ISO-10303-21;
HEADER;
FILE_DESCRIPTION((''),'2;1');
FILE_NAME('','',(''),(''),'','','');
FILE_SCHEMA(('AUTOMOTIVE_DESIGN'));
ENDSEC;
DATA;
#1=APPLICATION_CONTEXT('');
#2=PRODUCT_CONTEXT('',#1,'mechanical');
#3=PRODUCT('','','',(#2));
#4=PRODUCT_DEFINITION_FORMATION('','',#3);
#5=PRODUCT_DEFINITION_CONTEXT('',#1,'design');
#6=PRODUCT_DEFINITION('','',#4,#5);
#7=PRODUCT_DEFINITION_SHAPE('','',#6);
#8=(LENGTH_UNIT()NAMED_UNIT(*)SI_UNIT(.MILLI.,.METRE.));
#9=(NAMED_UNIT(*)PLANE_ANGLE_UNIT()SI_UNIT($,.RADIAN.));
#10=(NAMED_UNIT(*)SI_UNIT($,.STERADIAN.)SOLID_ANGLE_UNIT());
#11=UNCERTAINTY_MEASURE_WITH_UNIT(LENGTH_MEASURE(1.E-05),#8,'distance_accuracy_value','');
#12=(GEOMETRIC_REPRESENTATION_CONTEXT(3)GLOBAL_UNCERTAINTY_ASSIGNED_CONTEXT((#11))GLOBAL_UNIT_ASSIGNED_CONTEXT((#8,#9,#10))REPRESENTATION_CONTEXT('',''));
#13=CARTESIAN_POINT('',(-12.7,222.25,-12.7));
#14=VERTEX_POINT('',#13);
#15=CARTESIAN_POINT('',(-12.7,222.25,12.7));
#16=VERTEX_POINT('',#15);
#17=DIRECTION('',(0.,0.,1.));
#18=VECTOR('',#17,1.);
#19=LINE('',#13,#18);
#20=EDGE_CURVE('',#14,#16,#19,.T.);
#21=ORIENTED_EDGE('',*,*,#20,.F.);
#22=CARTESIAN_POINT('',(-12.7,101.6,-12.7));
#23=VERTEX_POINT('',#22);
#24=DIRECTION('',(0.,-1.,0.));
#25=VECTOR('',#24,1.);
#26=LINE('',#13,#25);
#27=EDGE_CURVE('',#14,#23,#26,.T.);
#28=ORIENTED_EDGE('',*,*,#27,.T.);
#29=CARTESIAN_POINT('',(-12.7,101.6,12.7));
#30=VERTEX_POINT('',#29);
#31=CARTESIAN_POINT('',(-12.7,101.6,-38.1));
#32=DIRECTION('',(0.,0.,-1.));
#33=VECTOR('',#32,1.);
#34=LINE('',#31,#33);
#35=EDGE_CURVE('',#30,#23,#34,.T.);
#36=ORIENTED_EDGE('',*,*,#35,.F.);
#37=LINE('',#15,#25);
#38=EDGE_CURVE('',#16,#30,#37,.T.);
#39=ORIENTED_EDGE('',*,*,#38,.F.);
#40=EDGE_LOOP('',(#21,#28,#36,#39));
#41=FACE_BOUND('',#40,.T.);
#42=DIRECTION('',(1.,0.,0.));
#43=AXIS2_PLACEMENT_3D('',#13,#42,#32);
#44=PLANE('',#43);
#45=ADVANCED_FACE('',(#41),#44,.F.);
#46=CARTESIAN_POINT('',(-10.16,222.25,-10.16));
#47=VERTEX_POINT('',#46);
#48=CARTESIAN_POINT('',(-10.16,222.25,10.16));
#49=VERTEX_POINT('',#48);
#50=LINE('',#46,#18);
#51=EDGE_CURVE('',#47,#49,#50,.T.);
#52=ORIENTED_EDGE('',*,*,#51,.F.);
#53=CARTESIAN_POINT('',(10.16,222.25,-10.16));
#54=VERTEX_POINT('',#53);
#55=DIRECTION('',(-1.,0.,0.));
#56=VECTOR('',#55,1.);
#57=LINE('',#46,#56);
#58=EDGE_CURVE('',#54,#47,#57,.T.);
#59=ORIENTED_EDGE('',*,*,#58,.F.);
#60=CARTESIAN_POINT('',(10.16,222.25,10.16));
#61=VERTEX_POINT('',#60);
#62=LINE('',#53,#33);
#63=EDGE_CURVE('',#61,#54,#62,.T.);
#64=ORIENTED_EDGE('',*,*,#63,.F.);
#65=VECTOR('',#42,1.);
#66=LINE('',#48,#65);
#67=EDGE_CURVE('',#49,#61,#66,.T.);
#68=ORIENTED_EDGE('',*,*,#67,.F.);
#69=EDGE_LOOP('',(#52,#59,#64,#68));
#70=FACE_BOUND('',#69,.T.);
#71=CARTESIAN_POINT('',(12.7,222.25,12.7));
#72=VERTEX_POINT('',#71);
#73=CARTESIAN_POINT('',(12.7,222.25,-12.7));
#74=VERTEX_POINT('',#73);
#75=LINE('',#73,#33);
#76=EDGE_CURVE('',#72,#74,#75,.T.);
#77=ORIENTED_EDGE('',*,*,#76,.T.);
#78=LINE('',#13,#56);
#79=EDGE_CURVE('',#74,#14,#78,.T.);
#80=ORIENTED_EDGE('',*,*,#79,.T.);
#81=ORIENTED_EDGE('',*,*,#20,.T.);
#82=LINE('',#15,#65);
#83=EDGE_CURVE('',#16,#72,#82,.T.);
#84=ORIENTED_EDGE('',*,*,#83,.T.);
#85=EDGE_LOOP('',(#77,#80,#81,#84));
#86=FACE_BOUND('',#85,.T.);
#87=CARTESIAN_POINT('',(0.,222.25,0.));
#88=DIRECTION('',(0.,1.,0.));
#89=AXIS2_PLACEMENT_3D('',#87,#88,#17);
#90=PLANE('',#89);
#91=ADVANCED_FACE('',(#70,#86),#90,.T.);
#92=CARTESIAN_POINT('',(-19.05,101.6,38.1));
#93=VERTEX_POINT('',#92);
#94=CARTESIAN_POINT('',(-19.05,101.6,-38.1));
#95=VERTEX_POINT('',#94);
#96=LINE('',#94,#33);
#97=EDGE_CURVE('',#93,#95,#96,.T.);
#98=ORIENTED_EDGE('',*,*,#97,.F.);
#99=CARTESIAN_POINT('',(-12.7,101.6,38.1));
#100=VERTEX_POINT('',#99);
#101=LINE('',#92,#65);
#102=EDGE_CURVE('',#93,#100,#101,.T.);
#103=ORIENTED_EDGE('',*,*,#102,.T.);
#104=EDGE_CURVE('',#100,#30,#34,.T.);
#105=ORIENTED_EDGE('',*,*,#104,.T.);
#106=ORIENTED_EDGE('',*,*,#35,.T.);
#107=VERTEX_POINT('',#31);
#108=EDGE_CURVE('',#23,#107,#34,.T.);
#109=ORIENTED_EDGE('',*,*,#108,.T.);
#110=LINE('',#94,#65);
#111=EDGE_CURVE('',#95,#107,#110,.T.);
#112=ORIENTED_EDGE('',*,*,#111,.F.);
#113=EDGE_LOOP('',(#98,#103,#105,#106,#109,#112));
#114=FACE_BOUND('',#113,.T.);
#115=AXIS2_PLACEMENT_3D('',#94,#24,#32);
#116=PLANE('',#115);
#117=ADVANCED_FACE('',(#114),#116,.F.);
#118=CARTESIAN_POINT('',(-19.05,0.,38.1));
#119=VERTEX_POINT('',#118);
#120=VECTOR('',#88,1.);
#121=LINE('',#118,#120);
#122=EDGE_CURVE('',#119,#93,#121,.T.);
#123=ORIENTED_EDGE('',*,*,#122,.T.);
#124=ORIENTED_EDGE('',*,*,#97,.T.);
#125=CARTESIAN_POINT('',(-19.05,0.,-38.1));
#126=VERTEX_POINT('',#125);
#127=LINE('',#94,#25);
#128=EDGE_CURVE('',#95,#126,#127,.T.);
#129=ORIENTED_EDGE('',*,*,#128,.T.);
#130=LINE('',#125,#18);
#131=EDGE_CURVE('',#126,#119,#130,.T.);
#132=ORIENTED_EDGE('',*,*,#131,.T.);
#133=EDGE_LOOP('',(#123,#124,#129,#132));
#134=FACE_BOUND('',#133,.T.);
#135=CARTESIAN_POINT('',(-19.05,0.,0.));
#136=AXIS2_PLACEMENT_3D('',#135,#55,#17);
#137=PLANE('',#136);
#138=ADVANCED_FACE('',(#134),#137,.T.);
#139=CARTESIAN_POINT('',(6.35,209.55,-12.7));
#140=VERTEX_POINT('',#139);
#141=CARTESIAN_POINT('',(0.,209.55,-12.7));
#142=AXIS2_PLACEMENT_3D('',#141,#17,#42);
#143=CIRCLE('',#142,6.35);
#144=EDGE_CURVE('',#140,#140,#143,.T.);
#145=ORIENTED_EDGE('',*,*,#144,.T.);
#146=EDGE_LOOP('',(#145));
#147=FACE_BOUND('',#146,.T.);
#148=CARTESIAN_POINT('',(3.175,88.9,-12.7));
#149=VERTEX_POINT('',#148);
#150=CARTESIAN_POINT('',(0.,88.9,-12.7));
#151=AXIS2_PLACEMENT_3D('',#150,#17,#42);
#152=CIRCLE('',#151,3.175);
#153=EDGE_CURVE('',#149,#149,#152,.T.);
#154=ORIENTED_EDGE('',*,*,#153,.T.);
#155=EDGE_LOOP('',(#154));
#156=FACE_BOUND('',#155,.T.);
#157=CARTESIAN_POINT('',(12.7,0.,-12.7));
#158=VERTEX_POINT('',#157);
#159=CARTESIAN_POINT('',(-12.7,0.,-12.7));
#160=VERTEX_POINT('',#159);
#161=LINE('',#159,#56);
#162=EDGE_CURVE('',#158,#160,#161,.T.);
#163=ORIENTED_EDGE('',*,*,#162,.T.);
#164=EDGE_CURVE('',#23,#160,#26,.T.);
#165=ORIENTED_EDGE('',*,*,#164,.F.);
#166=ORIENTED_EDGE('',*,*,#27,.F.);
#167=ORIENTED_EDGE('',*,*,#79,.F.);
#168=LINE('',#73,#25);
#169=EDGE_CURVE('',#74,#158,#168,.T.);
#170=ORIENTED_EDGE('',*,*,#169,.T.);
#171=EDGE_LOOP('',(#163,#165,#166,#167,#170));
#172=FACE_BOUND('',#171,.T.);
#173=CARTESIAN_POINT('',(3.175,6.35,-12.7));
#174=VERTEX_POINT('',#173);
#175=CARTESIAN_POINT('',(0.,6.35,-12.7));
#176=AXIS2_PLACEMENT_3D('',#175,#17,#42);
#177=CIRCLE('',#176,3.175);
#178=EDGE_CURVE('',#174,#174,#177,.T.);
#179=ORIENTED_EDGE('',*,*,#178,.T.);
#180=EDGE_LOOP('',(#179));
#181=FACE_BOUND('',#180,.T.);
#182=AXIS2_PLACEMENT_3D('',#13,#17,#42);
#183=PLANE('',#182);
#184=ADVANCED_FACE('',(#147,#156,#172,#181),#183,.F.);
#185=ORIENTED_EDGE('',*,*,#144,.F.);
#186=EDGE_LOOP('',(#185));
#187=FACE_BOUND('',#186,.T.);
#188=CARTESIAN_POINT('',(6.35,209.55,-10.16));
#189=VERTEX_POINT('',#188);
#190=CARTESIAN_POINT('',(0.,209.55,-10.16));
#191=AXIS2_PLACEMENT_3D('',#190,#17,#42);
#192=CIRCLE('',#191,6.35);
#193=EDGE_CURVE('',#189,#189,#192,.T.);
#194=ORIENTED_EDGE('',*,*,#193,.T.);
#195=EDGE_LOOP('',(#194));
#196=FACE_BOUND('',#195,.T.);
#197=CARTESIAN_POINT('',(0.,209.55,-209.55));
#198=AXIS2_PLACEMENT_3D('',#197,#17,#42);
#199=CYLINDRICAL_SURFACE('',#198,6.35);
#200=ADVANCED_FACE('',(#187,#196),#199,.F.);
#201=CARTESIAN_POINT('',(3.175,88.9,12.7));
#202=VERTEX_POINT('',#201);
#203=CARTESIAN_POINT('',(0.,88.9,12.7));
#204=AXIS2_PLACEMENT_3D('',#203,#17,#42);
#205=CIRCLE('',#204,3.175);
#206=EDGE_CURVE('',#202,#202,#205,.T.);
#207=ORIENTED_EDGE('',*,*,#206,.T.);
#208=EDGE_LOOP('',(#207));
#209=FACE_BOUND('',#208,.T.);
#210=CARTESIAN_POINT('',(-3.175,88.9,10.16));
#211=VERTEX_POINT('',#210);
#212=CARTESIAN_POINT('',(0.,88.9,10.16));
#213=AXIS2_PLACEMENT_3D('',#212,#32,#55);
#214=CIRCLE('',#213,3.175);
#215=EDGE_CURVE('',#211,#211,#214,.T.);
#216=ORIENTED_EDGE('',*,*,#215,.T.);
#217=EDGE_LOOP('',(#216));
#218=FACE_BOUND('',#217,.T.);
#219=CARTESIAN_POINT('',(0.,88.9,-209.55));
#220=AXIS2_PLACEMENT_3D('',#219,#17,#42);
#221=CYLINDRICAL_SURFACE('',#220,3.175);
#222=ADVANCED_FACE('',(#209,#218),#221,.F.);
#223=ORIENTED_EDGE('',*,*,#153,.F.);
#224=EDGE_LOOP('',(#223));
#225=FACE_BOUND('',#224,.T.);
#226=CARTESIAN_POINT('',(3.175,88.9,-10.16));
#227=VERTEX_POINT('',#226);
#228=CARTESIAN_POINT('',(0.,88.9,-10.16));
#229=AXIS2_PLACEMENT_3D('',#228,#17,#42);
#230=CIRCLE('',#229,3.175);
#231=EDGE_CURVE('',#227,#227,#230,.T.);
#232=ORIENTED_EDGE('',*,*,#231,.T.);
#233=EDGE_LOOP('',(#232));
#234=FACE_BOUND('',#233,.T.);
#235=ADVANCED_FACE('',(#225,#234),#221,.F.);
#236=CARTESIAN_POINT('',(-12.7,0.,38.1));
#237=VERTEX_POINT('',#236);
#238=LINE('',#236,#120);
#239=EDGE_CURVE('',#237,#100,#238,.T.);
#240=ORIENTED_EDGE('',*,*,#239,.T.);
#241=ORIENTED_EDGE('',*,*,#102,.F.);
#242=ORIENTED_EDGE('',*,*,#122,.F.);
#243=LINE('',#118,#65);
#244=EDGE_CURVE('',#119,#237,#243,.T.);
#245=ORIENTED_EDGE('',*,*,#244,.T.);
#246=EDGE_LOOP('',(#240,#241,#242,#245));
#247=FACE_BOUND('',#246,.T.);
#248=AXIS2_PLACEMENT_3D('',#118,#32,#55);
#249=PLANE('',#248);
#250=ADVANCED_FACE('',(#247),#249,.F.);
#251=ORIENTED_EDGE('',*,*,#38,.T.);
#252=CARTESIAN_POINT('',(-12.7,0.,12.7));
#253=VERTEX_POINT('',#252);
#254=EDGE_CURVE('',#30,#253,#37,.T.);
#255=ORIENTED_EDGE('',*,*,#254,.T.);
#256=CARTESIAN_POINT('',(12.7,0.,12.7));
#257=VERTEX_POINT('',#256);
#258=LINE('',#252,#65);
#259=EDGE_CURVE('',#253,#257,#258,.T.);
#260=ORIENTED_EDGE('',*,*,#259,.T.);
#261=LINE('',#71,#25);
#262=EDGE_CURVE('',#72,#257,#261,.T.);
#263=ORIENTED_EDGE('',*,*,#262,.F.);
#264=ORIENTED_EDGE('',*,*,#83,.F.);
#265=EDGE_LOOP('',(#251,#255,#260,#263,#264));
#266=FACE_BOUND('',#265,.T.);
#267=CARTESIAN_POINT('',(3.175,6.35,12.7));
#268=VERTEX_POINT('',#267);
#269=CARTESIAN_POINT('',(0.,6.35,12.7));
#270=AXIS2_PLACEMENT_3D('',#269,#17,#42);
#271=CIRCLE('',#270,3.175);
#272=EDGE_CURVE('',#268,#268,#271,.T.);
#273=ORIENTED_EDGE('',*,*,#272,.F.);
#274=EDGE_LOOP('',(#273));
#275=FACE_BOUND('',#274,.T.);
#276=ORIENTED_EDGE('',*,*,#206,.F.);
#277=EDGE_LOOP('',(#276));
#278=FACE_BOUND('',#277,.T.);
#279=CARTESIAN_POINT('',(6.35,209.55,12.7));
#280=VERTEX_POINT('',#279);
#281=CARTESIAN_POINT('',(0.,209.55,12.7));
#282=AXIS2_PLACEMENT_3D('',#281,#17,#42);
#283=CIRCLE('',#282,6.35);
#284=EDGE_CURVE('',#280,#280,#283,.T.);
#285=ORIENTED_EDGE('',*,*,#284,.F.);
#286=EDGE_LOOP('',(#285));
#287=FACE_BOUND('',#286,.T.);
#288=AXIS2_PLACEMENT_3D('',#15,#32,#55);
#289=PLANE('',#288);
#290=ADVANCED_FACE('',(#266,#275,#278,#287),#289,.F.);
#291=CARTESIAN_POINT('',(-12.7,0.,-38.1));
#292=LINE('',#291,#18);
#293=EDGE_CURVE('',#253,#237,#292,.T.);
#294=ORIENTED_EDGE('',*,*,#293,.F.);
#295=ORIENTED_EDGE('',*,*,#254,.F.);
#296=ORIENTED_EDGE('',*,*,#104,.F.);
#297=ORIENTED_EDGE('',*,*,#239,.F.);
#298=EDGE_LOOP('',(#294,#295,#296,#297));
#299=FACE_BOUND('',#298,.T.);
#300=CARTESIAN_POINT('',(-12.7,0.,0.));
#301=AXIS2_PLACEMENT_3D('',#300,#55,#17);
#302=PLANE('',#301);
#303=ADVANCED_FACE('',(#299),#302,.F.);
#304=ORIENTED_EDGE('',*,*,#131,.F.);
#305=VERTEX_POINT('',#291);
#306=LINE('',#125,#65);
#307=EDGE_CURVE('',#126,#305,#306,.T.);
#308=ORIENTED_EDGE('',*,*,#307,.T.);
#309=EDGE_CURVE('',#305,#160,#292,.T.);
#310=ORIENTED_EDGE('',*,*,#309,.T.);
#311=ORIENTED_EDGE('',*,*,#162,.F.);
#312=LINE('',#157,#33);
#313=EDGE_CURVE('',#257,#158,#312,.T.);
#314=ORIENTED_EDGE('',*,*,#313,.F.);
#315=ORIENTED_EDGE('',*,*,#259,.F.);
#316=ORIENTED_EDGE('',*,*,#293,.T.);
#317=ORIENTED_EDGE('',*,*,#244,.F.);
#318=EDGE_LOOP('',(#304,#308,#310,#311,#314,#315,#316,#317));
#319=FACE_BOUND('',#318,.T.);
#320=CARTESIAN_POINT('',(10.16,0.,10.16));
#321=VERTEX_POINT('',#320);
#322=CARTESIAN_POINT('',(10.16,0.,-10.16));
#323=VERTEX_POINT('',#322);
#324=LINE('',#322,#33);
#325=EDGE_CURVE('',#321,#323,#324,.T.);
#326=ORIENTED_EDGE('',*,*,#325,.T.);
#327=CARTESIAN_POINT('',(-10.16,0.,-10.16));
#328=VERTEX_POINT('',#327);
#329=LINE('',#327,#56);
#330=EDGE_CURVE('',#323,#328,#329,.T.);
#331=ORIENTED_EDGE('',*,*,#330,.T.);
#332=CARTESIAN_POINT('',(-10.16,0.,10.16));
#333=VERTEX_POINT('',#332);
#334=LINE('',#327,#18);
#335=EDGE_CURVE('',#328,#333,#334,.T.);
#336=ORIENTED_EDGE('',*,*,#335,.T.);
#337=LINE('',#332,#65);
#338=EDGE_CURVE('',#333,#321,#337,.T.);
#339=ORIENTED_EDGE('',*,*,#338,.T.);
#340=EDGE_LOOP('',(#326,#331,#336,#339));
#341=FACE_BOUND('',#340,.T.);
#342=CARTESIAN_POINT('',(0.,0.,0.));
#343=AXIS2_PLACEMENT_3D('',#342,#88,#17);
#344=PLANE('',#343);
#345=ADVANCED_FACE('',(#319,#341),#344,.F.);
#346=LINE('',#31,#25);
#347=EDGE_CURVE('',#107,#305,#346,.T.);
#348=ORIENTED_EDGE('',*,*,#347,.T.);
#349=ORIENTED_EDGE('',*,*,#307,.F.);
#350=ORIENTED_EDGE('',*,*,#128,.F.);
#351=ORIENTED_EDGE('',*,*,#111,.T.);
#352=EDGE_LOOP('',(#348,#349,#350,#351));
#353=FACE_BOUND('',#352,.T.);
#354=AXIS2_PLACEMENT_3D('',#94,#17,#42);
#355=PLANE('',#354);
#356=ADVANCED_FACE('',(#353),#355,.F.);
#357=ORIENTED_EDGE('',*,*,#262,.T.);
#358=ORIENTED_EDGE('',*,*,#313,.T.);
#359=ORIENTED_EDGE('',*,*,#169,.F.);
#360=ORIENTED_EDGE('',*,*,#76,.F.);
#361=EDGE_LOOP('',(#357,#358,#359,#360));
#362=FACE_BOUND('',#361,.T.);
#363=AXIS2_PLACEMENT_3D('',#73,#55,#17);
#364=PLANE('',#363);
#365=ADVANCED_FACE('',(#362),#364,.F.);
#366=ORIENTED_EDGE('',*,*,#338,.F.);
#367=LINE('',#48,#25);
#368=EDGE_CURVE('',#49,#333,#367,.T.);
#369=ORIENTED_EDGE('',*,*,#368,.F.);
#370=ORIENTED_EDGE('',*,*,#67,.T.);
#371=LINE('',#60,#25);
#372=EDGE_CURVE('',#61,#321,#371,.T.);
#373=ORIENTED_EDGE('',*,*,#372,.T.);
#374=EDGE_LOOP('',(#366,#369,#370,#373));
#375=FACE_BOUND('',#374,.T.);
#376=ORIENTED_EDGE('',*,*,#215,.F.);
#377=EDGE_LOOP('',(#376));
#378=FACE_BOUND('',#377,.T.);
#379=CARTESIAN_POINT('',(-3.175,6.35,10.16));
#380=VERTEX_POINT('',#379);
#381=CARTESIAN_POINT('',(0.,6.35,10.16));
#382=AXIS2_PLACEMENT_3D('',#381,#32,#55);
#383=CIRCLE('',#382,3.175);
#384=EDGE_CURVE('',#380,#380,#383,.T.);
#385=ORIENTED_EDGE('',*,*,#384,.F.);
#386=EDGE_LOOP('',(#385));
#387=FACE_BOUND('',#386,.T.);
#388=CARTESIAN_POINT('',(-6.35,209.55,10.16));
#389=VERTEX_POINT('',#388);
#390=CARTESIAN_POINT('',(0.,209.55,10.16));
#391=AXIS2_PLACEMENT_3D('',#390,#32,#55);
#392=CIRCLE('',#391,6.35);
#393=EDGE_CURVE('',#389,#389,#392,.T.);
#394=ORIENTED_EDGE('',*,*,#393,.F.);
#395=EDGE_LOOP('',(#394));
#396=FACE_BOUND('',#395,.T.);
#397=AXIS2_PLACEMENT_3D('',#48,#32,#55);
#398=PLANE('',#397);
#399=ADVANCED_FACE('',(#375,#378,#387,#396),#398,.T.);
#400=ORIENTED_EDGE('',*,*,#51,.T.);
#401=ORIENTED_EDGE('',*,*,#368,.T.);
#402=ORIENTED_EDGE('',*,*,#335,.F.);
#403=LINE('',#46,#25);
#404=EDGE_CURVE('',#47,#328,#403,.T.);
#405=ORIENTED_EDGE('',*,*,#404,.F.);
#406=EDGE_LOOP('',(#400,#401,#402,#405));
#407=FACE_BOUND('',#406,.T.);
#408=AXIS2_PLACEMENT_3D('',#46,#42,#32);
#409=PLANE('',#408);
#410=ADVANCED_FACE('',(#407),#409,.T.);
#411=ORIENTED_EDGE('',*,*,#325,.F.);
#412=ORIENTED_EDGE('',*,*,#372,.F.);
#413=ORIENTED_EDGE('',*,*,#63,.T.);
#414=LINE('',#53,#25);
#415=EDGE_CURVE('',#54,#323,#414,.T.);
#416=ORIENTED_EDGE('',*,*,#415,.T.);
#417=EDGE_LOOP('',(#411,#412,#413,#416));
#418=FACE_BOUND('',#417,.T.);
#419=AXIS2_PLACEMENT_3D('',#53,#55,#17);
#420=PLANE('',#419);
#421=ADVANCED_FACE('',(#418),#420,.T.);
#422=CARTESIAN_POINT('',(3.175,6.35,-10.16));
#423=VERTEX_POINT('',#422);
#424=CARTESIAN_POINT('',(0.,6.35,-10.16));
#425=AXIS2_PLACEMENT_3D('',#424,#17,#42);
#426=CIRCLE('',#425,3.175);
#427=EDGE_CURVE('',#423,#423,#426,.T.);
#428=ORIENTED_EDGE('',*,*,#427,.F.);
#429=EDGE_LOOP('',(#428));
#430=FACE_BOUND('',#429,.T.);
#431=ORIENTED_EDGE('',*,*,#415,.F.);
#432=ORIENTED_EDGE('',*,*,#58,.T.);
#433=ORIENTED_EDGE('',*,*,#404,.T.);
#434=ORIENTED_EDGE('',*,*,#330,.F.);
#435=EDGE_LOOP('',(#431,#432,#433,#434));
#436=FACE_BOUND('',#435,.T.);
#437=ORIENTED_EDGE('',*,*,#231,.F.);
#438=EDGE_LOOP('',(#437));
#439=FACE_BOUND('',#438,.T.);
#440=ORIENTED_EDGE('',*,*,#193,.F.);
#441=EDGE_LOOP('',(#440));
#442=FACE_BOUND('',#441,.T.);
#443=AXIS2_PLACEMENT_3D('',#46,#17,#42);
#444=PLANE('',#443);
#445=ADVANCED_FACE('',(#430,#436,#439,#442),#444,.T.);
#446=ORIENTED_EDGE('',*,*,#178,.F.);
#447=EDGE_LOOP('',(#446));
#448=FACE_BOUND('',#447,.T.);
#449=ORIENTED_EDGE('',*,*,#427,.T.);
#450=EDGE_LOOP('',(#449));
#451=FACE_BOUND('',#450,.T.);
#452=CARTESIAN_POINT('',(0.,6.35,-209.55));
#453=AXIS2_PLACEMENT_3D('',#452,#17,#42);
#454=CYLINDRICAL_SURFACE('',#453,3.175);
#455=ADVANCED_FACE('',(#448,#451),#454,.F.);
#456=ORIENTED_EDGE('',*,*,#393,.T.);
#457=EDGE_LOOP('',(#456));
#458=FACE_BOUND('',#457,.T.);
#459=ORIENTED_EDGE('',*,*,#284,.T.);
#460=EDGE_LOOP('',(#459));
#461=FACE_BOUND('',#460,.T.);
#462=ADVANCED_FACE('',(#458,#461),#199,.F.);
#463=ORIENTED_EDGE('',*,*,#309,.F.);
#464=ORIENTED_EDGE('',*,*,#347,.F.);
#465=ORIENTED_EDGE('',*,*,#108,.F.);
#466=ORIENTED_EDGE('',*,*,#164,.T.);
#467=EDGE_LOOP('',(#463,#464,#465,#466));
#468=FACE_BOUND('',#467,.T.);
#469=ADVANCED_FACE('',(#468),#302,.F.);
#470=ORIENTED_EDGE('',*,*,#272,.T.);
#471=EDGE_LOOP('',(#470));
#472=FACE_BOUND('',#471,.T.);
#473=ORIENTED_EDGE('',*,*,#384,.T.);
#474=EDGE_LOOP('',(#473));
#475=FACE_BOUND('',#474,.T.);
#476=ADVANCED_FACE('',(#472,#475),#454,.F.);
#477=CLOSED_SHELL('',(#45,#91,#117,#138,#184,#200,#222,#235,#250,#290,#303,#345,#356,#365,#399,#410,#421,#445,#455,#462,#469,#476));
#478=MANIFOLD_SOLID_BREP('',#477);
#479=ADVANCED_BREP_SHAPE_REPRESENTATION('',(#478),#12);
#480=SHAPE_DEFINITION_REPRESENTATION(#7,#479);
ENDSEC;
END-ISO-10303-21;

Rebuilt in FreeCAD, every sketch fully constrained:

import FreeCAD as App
import Part
import Sketcher
from FreeCAD import Vector
Q = App.Units.Quantity


def add_polygon(sketch, points):
    """Adds a closed chain of lines whose ends are joined by coincident constraints."""
    first, n = sketch.GeometryCount, len(points)
    for a, b in zip(points, points[1:] + points[:1]):
        sketch.addGeometry(Part.LineSegment(App.Vector(*a, 0), App.Vector(*b, 0)), False)
    for i in range(n):
        sketch.addConstraint(Sketcher.Constraint("Coincident", first + i, 2, first + (i + 1) % n, 1))

doc = App.newDocument("Part")
body = doc.addObject("PartDesign::Body", "Body")

# Sketch on XZ plane
sketch1 = doc.addObject("Sketcher::SketchObject", "Sketch")
body.addObject(sketch1)
sketch1.AttachmentSupport = (doc.XZ_Plane, [""])
sketch1.MapMode = "FlatFace"
add_polygon(sketch1, [(-12.7, -12.7), (-12.7, 12.7), (12.7, 12.7), (12.7, -12.7)])  # lines 0-3
add_polygon(sketch1, [(10.16, 10.16), (-10.16, 10.16), (-10.16, -10.16), (10.16, -10.16)])  # lines 4-7
sketch1.addConstraint([
    Sketcher.Constraint("Vertical", 0),
    Sketcher.Constraint("Horizontal", 1),
    Sketcher.Constraint("Vertical", 2),
    Sketcher.Constraint("Horizontal", 3),
    Sketcher.Constraint("Horizontal", 4),
    Sketcher.Constraint("Vertical", 5),
    Sketcher.Constraint("Horizontal", 6),
    Sketcher.Constraint("Vertical", 7),
    Sketcher.Constraint("Symmetric", 0, 2, 2, 2, -1, 1),
    Sketcher.Constraint("Symmetric", 4, 2, 6, 2, -1, 1),
    Sketcher.Constraint("Equal", 3, 0),
    Sketcher.Constraint("Equal", 6, 5),
    Sketcher.Constraint("DistanceX", 1, 1, 1, 2, Q("1 in")),
    Sketcher.Constraint("DistanceX", 4, 2, 4, 1, Q("0.8 in")),
])
pad1 = doc.addObject("PartDesign::Pad", "Pad")
body.addObject(pad1)
pad1.Profile = sketch1
pad1.Length = Q("8.75 in")
pad1.Reversed = True

# Sketch on XY plane
sketch2 = doc.addObject("Sketcher::SketchObject", "Sketch001")
body.addObject(sketch2)
sketch2.AttachmentSupport = (doc.XY_Plane, [""])
sketch2.MapMode = "FlatFace"
sketch2.AttachmentOffset = App.Placement(Vector(0, 0, 0.5 * 25.4), App.Rotation())
sketch2.addGeometry([
    Part.Circle(Vector(0, 209.55, 0), Vector(0, 0, 1), 6.35),
    Part.Circle(Vector(0, 6.35, 0), Vector(0, 0, 1), 3.175),
    Part.Circle(Vector(0, 88.9, 0), Vector(0, 0, 1), 3.175),
], False)
sketch2.addConstraint([
    Sketcher.Constraint("Equal", 1, 2),
    Sketcher.Constraint("PointOnObject", 0, 3, -2),
    Sketcher.Constraint("PointOnObject", 1, 3, -2),
    Sketcher.Constraint("PointOnObject", 2, 3, -2),
    Sketcher.Constraint("Diameter", 0, Q("0.5 in")),
    Sketcher.Constraint("Diameter", 1, Q("0.25 in")),
    Sketcher.Constraint("DistanceY", 1, 3, 0, 3, Q("8 in")),
    Sketcher.Constraint("DistanceY", -1, 1, 2, 3, Q("3.5 in")),
    Sketcher.Constraint("DistanceY", -1, 1, 0, 3, Q("8.25 in")),
])
pocket1 = doc.addObject("PartDesign::Pocket", "Pocket")
body.addObject(pocket1)
pocket1.Profile = sketch2
pocket1.Length = Q("8.75 in")

# Sketch on YZ plane
sketch3 = doc.addObject("Sketcher::SketchObject", "Sketch002")
body.addObject(sketch3)
sketch3.AttachmentSupport = (doc.YZ_Plane, [""])
sketch3.MapMode = "FlatFace"
sketch3.AttachmentOffset = App.Placement(Vector(0, 0, -0.5 * 25.4), App.Rotation())
add_polygon(sketch3, [(101.6, -38.1), (0, -38.1), (0, 38.1), (101.6, 38.1)])  # lines 0-3
sketch3.addConstraint([
    Sketcher.Constraint("Horizontal", 0),
    Sketcher.Constraint("Vertical", 1),
    Sketcher.Constraint("Horizontal", 2),
    Sketcher.Constraint("Vertical", 3),
    Sketcher.Constraint("Symmetric", 0, 2, 1, 2, -1, 1),
    Sketcher.Constraint("DistanceX", 0, 2, 0, 1, Q("4 in")),
    Sketcher.Constraint("DistanceY", 1, 1, 1, 2, Q("3 in")),
])
pad2 = doc.addObject("PartDesign::Pad", "Pad001")
body.addObject(pad2)
pad2.Profile = sketch3
pad2.Length = Q("0.25 in")
pad2.Reversed = True

doc.recompute()
